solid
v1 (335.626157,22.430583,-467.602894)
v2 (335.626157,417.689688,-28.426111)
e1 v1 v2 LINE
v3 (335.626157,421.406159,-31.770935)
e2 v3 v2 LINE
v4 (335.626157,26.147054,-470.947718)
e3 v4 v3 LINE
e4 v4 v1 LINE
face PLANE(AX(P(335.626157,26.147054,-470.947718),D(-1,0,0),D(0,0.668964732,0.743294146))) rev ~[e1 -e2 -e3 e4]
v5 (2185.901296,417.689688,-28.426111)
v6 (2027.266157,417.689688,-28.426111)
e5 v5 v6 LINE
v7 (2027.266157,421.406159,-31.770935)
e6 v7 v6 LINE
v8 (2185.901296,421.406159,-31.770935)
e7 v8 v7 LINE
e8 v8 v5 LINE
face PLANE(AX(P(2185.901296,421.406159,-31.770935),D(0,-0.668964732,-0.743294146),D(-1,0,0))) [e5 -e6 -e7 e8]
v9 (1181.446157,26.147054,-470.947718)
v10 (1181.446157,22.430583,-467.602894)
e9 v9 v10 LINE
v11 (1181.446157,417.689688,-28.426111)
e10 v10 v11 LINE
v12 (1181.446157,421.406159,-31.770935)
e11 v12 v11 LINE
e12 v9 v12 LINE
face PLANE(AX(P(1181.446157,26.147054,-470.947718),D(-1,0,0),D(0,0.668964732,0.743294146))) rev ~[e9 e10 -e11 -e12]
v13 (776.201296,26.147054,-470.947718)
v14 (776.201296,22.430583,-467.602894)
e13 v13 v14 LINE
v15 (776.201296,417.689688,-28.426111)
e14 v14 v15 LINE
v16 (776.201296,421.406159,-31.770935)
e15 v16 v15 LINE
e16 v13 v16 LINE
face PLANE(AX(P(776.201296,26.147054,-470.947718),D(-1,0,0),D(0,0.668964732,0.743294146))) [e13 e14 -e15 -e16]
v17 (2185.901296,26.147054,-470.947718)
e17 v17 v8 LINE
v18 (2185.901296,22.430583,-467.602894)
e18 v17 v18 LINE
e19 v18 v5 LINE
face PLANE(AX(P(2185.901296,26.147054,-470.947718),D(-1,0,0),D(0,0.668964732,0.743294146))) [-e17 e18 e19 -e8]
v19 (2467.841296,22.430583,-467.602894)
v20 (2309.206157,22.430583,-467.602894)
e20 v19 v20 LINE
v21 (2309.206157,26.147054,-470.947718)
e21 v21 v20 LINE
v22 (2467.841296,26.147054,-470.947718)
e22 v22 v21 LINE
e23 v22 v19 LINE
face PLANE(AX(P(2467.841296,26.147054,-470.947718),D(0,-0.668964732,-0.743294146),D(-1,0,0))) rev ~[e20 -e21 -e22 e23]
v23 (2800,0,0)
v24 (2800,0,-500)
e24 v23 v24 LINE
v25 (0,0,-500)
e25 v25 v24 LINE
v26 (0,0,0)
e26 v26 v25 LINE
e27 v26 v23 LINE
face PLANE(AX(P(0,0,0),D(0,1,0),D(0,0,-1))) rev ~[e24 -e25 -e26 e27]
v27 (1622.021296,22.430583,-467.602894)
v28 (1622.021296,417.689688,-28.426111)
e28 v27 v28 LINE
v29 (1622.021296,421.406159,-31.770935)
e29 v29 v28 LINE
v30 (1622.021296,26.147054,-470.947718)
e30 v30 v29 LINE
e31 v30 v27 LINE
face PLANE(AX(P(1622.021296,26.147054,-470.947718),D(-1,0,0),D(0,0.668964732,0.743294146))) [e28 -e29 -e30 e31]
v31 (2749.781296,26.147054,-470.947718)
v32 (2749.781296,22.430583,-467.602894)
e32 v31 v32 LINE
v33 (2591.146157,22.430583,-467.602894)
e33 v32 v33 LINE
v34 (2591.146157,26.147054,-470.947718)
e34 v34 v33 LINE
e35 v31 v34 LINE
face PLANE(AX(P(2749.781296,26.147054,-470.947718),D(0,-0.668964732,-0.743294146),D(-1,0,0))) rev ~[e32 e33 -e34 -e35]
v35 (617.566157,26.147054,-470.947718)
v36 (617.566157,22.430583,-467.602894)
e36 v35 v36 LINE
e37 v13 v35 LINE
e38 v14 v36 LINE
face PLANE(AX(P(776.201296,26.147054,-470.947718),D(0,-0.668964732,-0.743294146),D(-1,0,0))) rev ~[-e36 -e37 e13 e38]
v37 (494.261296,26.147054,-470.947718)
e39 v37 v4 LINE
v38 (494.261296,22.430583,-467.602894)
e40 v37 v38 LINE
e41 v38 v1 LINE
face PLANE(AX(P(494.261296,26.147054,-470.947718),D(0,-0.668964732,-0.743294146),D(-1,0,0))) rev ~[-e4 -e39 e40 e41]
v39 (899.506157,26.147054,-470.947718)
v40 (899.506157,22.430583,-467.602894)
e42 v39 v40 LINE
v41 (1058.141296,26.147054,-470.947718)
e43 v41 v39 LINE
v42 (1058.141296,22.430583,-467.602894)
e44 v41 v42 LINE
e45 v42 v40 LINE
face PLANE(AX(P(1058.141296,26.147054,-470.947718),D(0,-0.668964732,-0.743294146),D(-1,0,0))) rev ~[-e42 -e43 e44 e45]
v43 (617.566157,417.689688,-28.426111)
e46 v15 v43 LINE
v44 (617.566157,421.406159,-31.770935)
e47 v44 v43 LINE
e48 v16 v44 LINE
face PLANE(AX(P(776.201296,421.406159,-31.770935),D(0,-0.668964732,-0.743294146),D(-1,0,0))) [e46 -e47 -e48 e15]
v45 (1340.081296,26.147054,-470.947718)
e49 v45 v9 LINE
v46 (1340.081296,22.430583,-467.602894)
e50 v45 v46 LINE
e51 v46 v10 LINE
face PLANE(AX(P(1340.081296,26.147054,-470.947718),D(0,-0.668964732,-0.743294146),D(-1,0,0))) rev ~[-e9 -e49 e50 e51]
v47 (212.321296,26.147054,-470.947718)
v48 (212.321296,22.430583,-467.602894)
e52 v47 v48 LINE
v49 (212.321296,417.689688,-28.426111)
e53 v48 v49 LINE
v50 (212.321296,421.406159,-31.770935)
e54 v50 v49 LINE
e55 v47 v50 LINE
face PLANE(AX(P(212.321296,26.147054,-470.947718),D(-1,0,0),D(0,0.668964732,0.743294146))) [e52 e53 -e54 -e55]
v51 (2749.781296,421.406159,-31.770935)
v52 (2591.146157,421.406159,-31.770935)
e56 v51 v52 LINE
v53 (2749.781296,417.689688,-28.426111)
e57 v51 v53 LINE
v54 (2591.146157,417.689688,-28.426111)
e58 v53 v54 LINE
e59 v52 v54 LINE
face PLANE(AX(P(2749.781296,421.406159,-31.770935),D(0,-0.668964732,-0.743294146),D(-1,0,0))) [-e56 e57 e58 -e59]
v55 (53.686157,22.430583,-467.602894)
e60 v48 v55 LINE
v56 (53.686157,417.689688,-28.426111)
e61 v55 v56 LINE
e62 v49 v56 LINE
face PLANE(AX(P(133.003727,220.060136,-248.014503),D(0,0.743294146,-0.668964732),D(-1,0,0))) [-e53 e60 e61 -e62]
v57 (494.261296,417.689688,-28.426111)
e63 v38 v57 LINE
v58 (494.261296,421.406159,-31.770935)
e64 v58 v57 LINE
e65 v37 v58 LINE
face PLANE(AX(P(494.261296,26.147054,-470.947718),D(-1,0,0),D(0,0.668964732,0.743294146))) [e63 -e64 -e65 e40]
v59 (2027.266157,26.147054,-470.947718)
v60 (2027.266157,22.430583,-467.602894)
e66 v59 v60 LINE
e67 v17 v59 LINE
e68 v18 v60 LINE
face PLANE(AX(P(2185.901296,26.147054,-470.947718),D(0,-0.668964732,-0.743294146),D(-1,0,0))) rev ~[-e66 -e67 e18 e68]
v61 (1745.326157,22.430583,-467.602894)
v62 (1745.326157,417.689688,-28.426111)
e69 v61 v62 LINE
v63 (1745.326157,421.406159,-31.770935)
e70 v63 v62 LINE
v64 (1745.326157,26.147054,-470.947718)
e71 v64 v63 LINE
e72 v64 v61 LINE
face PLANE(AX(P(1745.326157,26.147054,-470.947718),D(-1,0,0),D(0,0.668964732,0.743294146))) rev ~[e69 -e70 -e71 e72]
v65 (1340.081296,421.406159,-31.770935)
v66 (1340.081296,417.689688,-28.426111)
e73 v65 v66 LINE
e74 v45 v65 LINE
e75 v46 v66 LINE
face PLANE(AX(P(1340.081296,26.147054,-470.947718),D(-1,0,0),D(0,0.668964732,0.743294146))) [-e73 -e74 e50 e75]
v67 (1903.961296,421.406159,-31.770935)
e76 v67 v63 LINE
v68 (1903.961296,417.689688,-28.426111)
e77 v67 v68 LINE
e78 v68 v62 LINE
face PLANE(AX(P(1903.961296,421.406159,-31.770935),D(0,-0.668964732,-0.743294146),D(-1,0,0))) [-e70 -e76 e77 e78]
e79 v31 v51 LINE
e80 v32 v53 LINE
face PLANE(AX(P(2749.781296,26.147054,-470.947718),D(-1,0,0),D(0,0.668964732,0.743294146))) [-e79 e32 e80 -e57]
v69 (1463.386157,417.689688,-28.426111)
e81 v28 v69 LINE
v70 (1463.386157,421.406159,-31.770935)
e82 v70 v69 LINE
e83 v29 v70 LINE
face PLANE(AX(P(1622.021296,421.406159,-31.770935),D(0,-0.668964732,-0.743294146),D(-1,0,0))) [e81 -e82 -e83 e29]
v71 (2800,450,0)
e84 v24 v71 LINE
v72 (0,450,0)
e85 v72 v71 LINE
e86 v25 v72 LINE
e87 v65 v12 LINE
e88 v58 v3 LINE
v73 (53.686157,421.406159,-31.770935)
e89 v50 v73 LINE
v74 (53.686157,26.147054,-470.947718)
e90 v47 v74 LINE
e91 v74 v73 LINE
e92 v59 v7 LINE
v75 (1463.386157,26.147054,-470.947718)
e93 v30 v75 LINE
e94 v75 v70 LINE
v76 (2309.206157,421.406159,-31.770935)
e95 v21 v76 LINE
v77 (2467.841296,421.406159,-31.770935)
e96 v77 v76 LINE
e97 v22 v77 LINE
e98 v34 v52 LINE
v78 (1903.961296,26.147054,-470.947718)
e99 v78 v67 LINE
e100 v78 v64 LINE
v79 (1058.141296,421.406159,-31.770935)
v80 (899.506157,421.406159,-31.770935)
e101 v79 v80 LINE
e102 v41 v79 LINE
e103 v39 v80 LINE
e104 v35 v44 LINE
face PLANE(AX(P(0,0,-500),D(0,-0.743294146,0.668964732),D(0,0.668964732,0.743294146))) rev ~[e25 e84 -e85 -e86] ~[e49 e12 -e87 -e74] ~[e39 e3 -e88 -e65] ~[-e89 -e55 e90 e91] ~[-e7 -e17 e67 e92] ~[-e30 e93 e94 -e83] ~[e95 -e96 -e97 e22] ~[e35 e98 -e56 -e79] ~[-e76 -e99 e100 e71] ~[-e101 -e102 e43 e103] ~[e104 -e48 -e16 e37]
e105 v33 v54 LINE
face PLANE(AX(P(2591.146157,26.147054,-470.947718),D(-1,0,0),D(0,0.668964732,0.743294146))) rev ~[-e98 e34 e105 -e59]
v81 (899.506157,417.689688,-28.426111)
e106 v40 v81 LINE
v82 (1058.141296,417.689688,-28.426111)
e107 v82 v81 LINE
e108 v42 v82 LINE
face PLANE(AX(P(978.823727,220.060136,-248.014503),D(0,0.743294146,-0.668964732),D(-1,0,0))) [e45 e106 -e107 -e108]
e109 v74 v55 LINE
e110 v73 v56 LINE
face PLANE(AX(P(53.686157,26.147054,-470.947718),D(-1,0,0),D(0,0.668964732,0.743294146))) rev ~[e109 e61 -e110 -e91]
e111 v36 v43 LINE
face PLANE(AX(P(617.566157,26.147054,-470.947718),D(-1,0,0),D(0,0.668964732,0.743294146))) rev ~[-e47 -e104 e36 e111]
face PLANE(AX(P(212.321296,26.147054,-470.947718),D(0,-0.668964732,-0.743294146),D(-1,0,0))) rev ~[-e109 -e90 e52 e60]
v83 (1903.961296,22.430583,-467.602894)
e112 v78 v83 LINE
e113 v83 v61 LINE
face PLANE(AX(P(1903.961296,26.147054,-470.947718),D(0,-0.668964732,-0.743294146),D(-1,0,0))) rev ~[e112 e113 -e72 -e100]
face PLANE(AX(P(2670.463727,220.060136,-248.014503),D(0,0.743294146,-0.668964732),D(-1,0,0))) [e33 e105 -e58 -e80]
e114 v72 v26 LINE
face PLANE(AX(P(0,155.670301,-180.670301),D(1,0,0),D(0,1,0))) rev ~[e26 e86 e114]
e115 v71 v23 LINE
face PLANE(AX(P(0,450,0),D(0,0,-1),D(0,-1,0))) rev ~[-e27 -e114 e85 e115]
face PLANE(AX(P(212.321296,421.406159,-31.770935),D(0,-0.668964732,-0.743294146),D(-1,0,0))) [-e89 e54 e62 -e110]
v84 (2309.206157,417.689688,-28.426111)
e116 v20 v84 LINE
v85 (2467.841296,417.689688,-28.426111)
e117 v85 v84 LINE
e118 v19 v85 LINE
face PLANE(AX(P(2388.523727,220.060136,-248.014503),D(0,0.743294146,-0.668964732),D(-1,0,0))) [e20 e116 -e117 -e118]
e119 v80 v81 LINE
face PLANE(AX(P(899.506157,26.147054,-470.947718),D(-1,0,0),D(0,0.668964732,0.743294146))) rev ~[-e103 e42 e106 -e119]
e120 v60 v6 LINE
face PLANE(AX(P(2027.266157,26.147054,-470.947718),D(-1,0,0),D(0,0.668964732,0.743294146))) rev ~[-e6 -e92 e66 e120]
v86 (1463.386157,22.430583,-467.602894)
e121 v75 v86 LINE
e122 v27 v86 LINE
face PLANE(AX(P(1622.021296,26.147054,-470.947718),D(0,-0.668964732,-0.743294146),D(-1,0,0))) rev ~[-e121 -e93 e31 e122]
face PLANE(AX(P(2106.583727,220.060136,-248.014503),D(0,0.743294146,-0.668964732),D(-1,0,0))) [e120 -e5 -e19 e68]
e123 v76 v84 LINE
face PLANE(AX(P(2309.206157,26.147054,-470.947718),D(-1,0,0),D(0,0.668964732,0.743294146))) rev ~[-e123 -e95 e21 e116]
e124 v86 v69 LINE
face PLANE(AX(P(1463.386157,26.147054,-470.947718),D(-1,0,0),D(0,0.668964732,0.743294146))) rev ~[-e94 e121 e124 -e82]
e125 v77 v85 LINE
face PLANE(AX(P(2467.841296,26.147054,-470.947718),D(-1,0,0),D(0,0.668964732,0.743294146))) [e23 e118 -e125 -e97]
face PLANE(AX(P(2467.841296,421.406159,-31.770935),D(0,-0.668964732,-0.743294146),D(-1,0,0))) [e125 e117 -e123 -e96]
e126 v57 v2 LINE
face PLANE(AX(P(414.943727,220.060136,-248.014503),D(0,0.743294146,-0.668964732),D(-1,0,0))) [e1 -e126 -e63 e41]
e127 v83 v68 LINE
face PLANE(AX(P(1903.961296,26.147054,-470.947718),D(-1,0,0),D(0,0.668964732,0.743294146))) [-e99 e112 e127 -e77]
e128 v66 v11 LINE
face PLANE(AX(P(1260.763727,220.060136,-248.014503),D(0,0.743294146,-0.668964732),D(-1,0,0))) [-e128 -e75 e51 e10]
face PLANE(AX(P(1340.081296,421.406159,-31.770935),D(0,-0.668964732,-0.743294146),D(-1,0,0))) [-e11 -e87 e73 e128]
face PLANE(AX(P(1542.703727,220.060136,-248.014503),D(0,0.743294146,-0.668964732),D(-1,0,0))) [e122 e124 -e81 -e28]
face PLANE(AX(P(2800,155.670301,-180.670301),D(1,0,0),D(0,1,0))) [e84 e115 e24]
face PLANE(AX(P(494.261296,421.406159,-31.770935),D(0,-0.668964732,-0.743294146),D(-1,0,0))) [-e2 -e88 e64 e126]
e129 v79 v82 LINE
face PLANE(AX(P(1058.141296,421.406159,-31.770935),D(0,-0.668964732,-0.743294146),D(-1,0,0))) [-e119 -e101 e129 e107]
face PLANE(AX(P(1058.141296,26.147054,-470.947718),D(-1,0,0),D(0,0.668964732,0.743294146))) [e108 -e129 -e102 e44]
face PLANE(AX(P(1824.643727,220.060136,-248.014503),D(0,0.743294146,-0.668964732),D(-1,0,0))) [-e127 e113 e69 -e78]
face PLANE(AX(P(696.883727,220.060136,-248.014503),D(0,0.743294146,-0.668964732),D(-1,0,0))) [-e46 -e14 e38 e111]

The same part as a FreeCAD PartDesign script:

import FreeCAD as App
import Part
import Sketcher
from FreeCAD import Vector


def add_polygon(sketch, points):
    """Adds a closed chain of lines whose ends are joined by coincident constraints."""
    first, n = sketch.GeometryCount, len(points)
    for a, b in zip(points, points[1:] + points[:1]):
        sketch.addGeometry(Part.LineSegment(App.Vector(*a, 0), App.Vector(*b, 0)), False)
    for i in range(n):
        sketch.addConstraint(Sketcher.Constraint("Coincident", first + i, 2, first + (i + 1) % n, 1))

doc = App.newDocument("Part")
body = doc.addObject("PartDesign::Body", "Body")

sketch1 = doc.addObject("Sketcher::SketchObject", "Sketch")
body.addObject(sketch1)
sketch1.AttachmentSupport = (doc.YZ_Plane, [""])
sketch1.MapMode = "FlatFace"
add_polygon(sketch1, [(450, 0), (0, 0), (0, -500)])
sketch1.addConstraint(Sketcher.Constraint("Horizontal", 0))
sketch1.addConstraint(Sketcher.Constraint("Vertical", 1))
sketch1.addConstraint(Sketcher.Constraint("Coincident", 0, 2, -1, 1))
sketch1.addConstraint(Sketcher.Constraint("DistanceX", 0, 2, 0, 1, 450.0))
sketch1.addConstraint(Sketcher.Constraint("DistanceY", 1, 2, 1, 1, 500.0))
pad1 = doc.addObject("PartDesign::Pad", "Pad")
body.addObject(pad1)
pad1.Profile = sketch1
pad1.Length = 2800

sketch2 = doc.addObject("Sketcher::SketchObject", "Sketch001")
body.addObject(sketch2)
sketch2.Placement = App.Placement(Vector(0, 248.618785, -223.756906), App.Rotation(Vector(-1, 0, 0), Vector(0, 0.668964732, 0.743294146), Vector(0, 0.743294146, -0.668964732), "ZXY"))
add_polygon(sketch2, [(-2749.781296, 258.290708), (-2749.781296, -332.561225), (-2591.146157, -332.561225), (-2591.146157, 258.290708)])
add_polygon(sketch2, [(-2467.841296, 258.290708), (-2467.841296, -332.561225), (-2309.206157, -332.561225), (-2309.206157, 258.290708)])
add_polygon(sketch2, [(-2185.901296, 258.290708), (-2185.901296, -332.561225), (-2027.266157, -332.561225), (-2027.266157, 258.290708)])
add_polygon(sketch2, [(-1903.961296, 258.290708), (-1903.961296, -332.561225), (-1745.326157, -332.561225), (-1745.326157, 258.290708)])
add_polygon(sketch2, [(-1622.021296, 258.290708), (-1622.021296, -332.561225), (-1463.386157, -332.561225), (-1463.386157, 258.290708)])
add_polygon(sketch2, [(-1340.081296, 258.290708), (-1340.081296, -332.561225), (-1181.446157, -332.561225), (-1181.446157, 258.290708)])
add_polygon(sketch2, [(-1058.141296, 258.290708), (-1058.141296, -332.561225), (-899.506157, -332.561225), (-899.506157, 258.290708)])
add_polygon(sketch2, [(-776.201296, 258.290708), (-776.201296, -332.561225), (-617.566157, -332.561225), (-617.566157, 258.290708)])
add_polygon(sketch2, [(-494.261296, 258.290708), (-494.261296, -332.561225), (-335.626157, -332.561225), (-335.626157, 258.290708)])
add_polygon(sketch2, [(-212.321296, 258.290708), (-212.321296, -332.561225), (-53.686157, -332.561225), (-53.686157, 258.290708)])
sketch2.addConstraint(Sketcher.Constraint("Vertical", 0))
sketch2.addConstraint(Sketcher.Constraint("Horizontal", 1))
sketch2.addConstraint(Sketcher.Constraint("Vertical", 2))
sketch2.addConstraint(Sketcher.Constraint("Horizontal", 3))
sketch2.addConstraint(Sketcher.Constraint("Vertical", 4))
sketch2.addConstraint(Sketcher.Constraint("Horizontal", 5))
sketch2.addConstraint(Sketcher.Constraint("Vertical", 6))
sketch2.addConstraint(Sketcher.Constraint("Horizontal", 7))
sketch2.addConstraint(Sketcher.Constraint("Vertical", 8))
sketch2.addConstraint(Sketcher.Constraint("Horizontal", 9))
sketch2.addConstraint(Sketcher.Constraint("Vertical", 10))
sketch2.addConstraint(Sketcher.Constraint("Horizontal", 11))
sketch2.addConstraint(Sketcher.Constraint("Vertical", 12))
sketch2.addConstraint(Sketcher.Constraint("Horizontal", 13))
sketch2.addConstraint(Sketcher.Constraint("Vertical", 14))
sketch2.addConstraint(Sketcher.Constraint("Horizontal", 15))
sketch2.addConstraint(Sketcher.Constraint("Vertical", 16))
sketch2.addConstraint(Sketcher.Constraint("Horizontal", 17))
sketch2.addConstraint(Sketcher.Constraint("Vertical", 18))
sketch2.addConstraint(Sketcher.Constraint("Horizontal", 19))
sketch2.addConstraint(Sketcher.Constraint("Vertical", 20))
sketch2.addConstraint(Sketcher.Constraint("Horizontal", 21))
sketch2.addConstraint(Sketcher.Constraint("Vertical", 22))
sketch2.addConstraint(Sketcher.Constraint("Horizontal", 23))
sketch2.addConstraint(Sketcher.Constraint("Vertical", 24))
sketch2.addConstraint(Sketcher.Constraint("Horizontal", 25))
sketch2.addConstraint(Sketcher.Constraint("Vertical", 26))
sketch2.addConstraint(Sketcher.Constraint("Horizontal", 27))
sketch2.addConstraint(Sketcher.Constraint("Vertical", 28))
sketch2.addConstraint(Sketcher.Constraint("Horizontal", 29))
sketch2.addConstraint(Sketcher.Constraint("Vertical", 30))
sketch2.addConstraint(Sketcher.Constraint("Horizontal", 31))
sketch2.addConstraint(Sketcher.Constraint("Vertical", 32))
sketch2.addConstraint(Sketcher.Constraint("Horizontal", 33))
sketch2.addConstraint(Sketcher.Constraint("Vertical", 34))
sketch2.addConstraint(Sketcher.Constraint("Horizontal", 35))
sketch2.addConstraint(Sketcher.Constraint("Vertical", 36))
sketch2.addConstraint(Sketcher.Constraint("Horizontal", 37))
sketch2.addConstraint(Sketcher.Constraint("Vertical", 38))
sketch2.addConstraint(Sketcher.Constraint("Horizontal", 39))
sketch2.addConstraint(Sketcher.Constraint("Horizontal", 1, 2, 4, 2))
sketch2.addConstraint(Sketcher.Constraint("Horizontal", 3, 2, 6, 2))
sketch2.addConstraint(Sketcher.Constraint("Horizontal", 5, 2, 8, 2))
sketch2.addConstraint(Sketcher.Constraint("Horizontal", 7, 2, 10, 2))
sketch2.addConstraint(Sketcher.Constraint("Horizontal", 9, 2, 12, 2))
sketch2.addConstraint(Sketcher.Constraint("Horizontal", 11, 2, 14, 2))
sketch2.addConstraint(Sketcher.Constraint("Horizontal", 13, 2, 16, 2))
sketch2.addConstraint(Sketcher.Constraint("Horizontal", 15, 2, 18, 2))
sketch2.addConstraint(Sketcher.Constraint("Horizontal", 17, 2, 20, 2))
sketch2.addConstraint(Sketcher.Constraint("Horizontal", 19, 2, 22, 2))
sketch2.addConstraint(Sketcher.Constraint("Horizontal", 21, 2, 24, 2))
sketch2.addConstraint(Sketcher.Constraint("Horizontal", 23, 2, 26, 2))
sketch2.addConstraint(Sketcher.Constraint("Horizontal", 25, 2, 28, 2))
sketch2.addConstraint(Sketcher.Constraint("Horizontal", 27, 2, 30, 2))
sketch2.addConstraint(Sketcher.Constraint("Horizontal", 29, 2, 32, 2))
sketch2.addConstraint(Sketcher.Constraint("Horizontal", 31, 2, 34, 2))
sketch2.addConstraint(Sketcher.Constraint("Horizontal", 33, 2, 36, 2))
sketch2.addConstraint(Sketcher.Constraint("Horizontal", 35, 2, 38, 2))
sketch2.addConstraint(Sketcher.Constraint("Equal", 3, 5))
sketch2.addConstraint(Sketcher.Constraint("Equal", 7, 9))
sketch2.addConstraint(Sketcher.Constraint("Equal", 11, 13))
sketch2.addConstraint(Sketcher.Constraint("Equal", 15, 17))
sketch2.addConstraint(Sketcher.Constraint("Equal", 19, 21))
sketch2.addConstraint(Sketcher.Constraint("Equal", 23, 25))
sketch2.addConstraint(Sketcher.Constraint("Equal", 27, 29))
sketch2.addConstraint(Sketcher.Constraint("Equal", 31, 33))
sketch2.addConstraint(Sketcher.Constraint("Equal", 35, 37))
sketch2.addConstraint(Sketcher.Constraint("DistanceX", 0, 2, 4, 2, 281.94))
sketch2.addConstraint(Sketcher.Constraint("DistanceX", 4, 2, 8, 2, 281.94))
sketch2.addConstraint(Sketcher.Constraint("DistanceX", 8, 2, 12, 2, 281.94))
sketch2.addConstraint(Sketcher.Constraint("DistanceX", 12, 2, 16, 2, 281.94))
sketch2.addConstraint(Sketcher.Constraint("DistanceX", 16, 2, 20, 2, 281.94))
sketch2.addConstraint(Sketcher.Constraint("DistanceX", 20, 2, 24, 2, 281.94))
sketch2.addConstraint(Sketcher.Constraint("DistanceX", 24, 2, 28, 2, 281.94))
sketch2.addConstraint(Sketcher.Constraint("DistanceX", 28, 2, 32, 2, 281.94))
sketch2.addConstraint(Sketcher.Constraint("DistanceX", 32, 2, 36, 2, 281.94))
sketch2.addConstraint(Sketcher.Constraint("DistanceX", 1, 1, 1, 2, 158.635139))
sketch2.addConstraint(Sketcher.Constraint("DistanceY", 0, 2, 0, 1, 590.851933))
sketch2.addConstraint(Sketcher.Constraint("DistanceY", -1, 1, 2, 2, 258.290708))
sketch2.addConstraint(Sketcher.Constraint("DistanceX", 0, 2, -1, 1, 2749.781296))
pocket1 = doc.addObject("PartDesign::Pocket", "Pocket")
body.addObject(pocket1)
pocket1.Profile = sketch2
pocket1.Length = 5

doc.recompute()
